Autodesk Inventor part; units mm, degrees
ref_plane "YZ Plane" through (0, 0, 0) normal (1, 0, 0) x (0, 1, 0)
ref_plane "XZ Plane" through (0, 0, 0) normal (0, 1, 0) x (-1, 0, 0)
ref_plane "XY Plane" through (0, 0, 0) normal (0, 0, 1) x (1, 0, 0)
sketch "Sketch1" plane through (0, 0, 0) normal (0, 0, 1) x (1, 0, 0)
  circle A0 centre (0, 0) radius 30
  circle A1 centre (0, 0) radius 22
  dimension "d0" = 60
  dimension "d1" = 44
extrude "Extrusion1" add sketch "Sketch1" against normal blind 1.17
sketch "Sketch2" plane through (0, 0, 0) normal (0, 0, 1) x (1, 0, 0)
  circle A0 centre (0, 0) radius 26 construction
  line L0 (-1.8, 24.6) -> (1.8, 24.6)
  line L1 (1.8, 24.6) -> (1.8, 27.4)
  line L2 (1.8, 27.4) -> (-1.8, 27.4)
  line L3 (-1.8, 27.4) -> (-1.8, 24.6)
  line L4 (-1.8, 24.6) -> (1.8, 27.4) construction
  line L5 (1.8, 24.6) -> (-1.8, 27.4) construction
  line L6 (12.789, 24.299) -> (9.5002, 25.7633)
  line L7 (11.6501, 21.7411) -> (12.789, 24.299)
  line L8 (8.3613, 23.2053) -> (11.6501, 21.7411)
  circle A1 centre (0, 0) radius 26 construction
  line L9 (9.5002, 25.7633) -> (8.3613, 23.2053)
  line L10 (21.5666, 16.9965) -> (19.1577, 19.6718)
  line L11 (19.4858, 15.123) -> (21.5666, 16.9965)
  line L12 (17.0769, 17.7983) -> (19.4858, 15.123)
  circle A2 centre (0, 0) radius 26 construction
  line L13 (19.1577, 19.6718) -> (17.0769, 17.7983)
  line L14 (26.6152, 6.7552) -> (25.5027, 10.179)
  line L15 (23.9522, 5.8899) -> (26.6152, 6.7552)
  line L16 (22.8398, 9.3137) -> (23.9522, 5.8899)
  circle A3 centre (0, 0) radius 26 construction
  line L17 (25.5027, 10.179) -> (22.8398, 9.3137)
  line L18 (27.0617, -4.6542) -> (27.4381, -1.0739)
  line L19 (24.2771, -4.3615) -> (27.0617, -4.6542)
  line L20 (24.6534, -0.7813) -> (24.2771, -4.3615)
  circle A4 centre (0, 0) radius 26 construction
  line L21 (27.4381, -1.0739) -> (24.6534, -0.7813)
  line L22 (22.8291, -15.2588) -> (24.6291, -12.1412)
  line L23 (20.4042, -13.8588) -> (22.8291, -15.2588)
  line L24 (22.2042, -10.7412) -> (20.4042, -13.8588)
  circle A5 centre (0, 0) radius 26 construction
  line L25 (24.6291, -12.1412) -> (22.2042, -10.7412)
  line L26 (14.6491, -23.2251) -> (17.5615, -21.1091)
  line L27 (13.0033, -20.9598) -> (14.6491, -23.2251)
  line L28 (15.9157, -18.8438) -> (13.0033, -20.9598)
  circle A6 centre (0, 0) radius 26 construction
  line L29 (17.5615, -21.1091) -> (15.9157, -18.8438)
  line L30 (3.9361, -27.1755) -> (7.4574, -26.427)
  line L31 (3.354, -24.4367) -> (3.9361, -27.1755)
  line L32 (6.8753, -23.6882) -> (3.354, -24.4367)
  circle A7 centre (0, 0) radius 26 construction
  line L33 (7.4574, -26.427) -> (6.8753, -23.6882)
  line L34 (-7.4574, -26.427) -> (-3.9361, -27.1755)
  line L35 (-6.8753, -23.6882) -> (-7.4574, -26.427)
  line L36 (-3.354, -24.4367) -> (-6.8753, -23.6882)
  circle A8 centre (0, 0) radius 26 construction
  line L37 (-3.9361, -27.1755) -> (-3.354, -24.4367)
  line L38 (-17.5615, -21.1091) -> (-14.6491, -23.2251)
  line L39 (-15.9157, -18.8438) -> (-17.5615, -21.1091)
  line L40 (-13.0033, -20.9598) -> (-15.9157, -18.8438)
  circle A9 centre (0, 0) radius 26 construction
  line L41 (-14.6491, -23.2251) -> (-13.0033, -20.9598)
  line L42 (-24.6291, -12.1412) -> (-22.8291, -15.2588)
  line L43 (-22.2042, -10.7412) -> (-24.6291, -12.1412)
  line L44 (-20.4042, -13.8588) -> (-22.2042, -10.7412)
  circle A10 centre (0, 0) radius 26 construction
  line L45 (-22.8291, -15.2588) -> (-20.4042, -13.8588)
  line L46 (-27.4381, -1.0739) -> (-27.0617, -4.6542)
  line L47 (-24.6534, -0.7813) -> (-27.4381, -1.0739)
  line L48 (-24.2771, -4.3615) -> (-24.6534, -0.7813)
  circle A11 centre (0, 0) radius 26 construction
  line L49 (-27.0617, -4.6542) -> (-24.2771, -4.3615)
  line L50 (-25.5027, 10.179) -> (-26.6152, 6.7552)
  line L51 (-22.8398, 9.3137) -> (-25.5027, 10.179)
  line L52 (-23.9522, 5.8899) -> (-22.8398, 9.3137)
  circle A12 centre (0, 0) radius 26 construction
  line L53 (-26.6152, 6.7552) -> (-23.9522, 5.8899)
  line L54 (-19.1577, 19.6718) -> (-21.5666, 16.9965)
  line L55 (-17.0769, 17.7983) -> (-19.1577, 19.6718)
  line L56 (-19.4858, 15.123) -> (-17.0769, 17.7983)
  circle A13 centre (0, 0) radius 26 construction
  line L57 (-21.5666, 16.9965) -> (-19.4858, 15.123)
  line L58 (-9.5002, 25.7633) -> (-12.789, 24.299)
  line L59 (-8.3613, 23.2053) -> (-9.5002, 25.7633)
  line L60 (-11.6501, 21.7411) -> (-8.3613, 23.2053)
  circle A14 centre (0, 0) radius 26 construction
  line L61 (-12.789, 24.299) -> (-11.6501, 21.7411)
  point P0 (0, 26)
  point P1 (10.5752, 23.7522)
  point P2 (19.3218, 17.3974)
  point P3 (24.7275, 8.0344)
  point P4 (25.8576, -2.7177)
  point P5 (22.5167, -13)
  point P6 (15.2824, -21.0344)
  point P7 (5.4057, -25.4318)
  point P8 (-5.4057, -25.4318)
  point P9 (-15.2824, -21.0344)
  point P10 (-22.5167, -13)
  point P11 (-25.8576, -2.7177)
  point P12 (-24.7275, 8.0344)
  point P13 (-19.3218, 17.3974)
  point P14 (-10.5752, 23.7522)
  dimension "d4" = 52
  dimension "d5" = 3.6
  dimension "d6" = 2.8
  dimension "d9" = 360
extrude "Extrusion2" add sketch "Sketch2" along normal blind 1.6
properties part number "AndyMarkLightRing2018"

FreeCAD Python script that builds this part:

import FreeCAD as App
import Part
import Sketcher

V = App.Vector
Q = App.Units.Quantity


def add_polygon(sketch, points):
    """Adds a closed chain of lines whose ends are joined by coincident constraints."""
    first, n = sketch.GeometryCount, len(points)
    for a, b in zip(points, points[1:] + points[:1]):
        sketch.addGeometry(Part.LineSegment(App.Vector(*a, 0), App.Vector(*b, 0)), False)
    for i in range(n):
        sketch.addConstraint(Sketcher.Constraint("Coincident", first + i, 2, first + (i + 1) % n, 1))

doc = App.newDocument("Part")
body = doc.addObject("PartDesign::Body", "Body")

# Sketch on XY plane
sketch1 = body.newObject("Sketcher::SketchObject", "Sketch")
sketch1.AttachmentSupport = (doc.getObject("XY_Plane"), [""])
sketch1.MapMode = "FlatFace"
sketch1.addGeometry([
    Part.Circle(V(0, 0, 0), V(0, 0, 1), 30),
    Part.Circle(V(0, 0, 0), V(0, 0, 1), 22),
], False)
sketch1.addConstraint([
    Sketcher.Constraint("Coincident", 0, 3, -1, 1),
    Sketcher.Constraint("Coincident", 1, 3, -1, 1),
    Sketcher.Constraint("Diameter", 0, 60.0),
    Sketcher.Constraint("Diameter", 1, 44.0),
])
pad1 = body.newObject("PartDesign::Pad", "Pad")
pad1.Profile = sketch1
pad1.Length = 1.17
pad1.Reversed = True

# Sketch on XY plane
sketch2 = body.newObject("Sketcher::SketchObject", "Sketch001")
sketch2.AttachmentSupport = (doc.getObject("XY_Plane"), [""])
sketch2.MapMode = "FlatFace"
add_polygon(sketch2, [(-1.8, 27.4), (-1.8, 24.6), (1.8, 24.6), (1.8, 27.4)])  # lines 0-3
add_polygon(sketch2, [(11.6501, 21.7411), (12.789, 24.299), (9.5002, 25.7633), (8.3613, 23.2053)])  # lines 4-7
add_polygon(sketch2, [(19.4858, 15.123), (21.5666, 16.9965), (19.1577, 19.6718), (17.0769, 17.7983)])  # lines 8-11
add_polygon(sketch2, [(23.9522, 5.8899), (26.6152, 6.7552), (25.5027, 10.179), (22.8398, 9.3137)])  # lines 12-15
add_polygon(sketch2, [(24.2771, -4.3615), (27.0617, -4.6542), (27.4381, -1.0739), (24.6534, -0.7813)])  # lines 16-19
add_polygon(sketch2, [(20.4042, -13.8588), (22.8291, -15.2588), (24.6291, -12.1412), (22.2042, -10.7412)])  # lines 20-23
add_polygon(sketch2, [(13.0033, -20.9598), (14.6491, -23.2251), (17.5615, -21.1091), (15.9157, -18.8438)])  # lines 24-27
add_polygon(sketch2, [(3.354, -24.4367), (3.9361, -27.1755), (7.4574, -26.427), (6.8753, -23.6882)])  # lines 28-31
add_polygon(sketch2, [(-6.8753, -23.6882), (-7.4574, -26.427), (-3.9361, -27.1755), (-3.354, -24.4367)])  # lines 32-35
add_polygon(sketch2, [(-15.9157, -18.8438), (-17.5615, -21.1091), (-14.6491, -23.2251), (-13.0033, -20.9598)])  # lines 36-39
add_polygon(sketch2, [(-22.2042, -10.7412), (-24.6291, -12.1412), (-22.8291, -15.2588), (-20.4042, -13.8588)])  # lines 40-43
add_polygon(sketch2, [(-24.6534, -0.7813), (-27.4381, -1.0739), (-27.0617, -4.6542), (-24.2771, -4.3615)])  # lines 44-47
add_polygon(sketch2, [(-22.8398, 9.3137), (-25.5027, 10.179), (-26.6152, 6.7552), (-23.9522, 5.8899)])  # lines 48-51
add_polygon(sketch2, [(-17.0769, 17.7983), (-19.1577, 19.6718), (-21.5666, 16.9965), (-19.4858, 15.123)])  # lines 52-55
add_polygon(sketch2, [(-8.3613, 23.2053), (-9.5002, 25.7633), (-12.789, 24.299), (-11.6501, 21.7411)])  # lines 56-59
sketch2.addConstraint([
    Sketcher.Constraint("Vertical", 0),
    Sketcher.Constraint("Horizontal", 1),
    Sketcher.Constraint("Vertical", 2),
    Sketcher.Constraint("Horizontal", 3),
    Sketcher.Constraint("Symmetric", 29, 2, 32, 2, -2),
    Sketcher.Constraint("Symmetric", 28, 2, 33, 2, -2),
    Sketcher.Constraint("Symmetric", 31, 2, 34, 2, -2),
    Sketcher.Constraint("Symmetric", 30, 2, 35, 2, -2),
    Sketcher.Constraint("Symmetric", 25, 2, 36, 2, -2),
    Sketcher.Constraint("Symmetric", 24, 2, 37, 2, -2),
    Sketcher.Constraint("Symmetric", 27, 2, 38, 2, -2),
    Sketcher.Constraint("Symmetric", 26, 2, 39, 2, -2),
    Sketcher.Constraint("Symmetric", 21, 2, 40, 2, -2),
    Sketcher.Constraint("Symmetric", 20, 2, 41, 2, -2),
    Sketcher.Constraint("Symmetric", 23, 2, 42, 2, -2),
    Sketcher.Constraint("Symmetric", 22, 2, 43, 2, -2),
    Sketcher.Constraint("Symmetric", 17, 2, 44, 2, -2),
    Sketcher.Constraint("Symmetric", 16, 2, 45, 2, -2),
    Sketcher.Constraint("Symmetric", 19, 2, 46, 2, -2),
    Sketcher.Constraint("Symmetric", 18, 2, 47, 2, -2),
    Sketcher.Constraint("Symmetric", 13, 2, 48, 2, -2),
    Sketcher.Constraint("Symmetric", 12, 2, 49, 2, -2),
    Sketcher.Constraint("Symmetric", 15, 2, 50, 2, -2),
    Sketcher.Constraint("Symmetric", 14, 2, 51, 2, -2),
    Sketcher.Constraint("Symmetric", 9, 2, 52, 2, -2),
    Sketcher.Constraint("Symmetric", 8, 2, 53, 2, -2),
    Sketcher.Constraint("Symmetric", 11, 2, 54, 2, -2),
    Sketcher.Constraint("Symmetric", 10, 2, 55, 2, -2),
    Sketcher.Constraint("Symmetric", 5, 2, 56, 2, -2),
    Sketcher.Constraint("Symmetric", 4, 2, 57, 2, -2),
    Sketcher.Constraint("Symmetric", 7, 2, 58, 2, -2),
    Sketcher.Constraint("Symmetric", 6, 2, 59, 2, -2),
    Sketcher.Constraint("Perpendicular", 4, 5),
    Sketcher.Constraint("Perpendicular", 5, 6),
    Sketcher.Constraint("Perpendicular", 6, 7),
    Sketcher.Constraint("Perpendicular", 8, 9),
    Sketcher.Constraint("Perpendicular", 9, 10),
    Sketcher.Constraint("Perpendicular", 10, 11),
    Sketcher.Constraint("Perpendicular", 12, 13),
    Sketcher.Constraint("Perpendicular", 13, 14),
    Sketcher.Constraint("Perpendicular", 14, 15),
    Sketcher.Constraint("Perpendicular", 16, 17),
    Sketcher.Constraint("Perpendicular", 17, 18),
    Sketcher.Constraint("Perpendicular", 18, 19),
    Sketcher.Constraint("Perpendicular", 20, 21),
    Sketcher.Constraint("Perpendicular", 21, 22),
    Sketcher.Constraint("Perpendicular", 22, 23),
    Sketcher.Constraint("Perpendicular", 24, 25),
    Sketcher.Constraint("Perpendicular", 25, 26),
    Sketcher.Constraint("Perpendicular", 26, 27),
    Sketcher.Constraint("Perpendicular", 28, 29),
    Sketcher.Constraint("Perpendicular", 29, 30),
    Sketcher.Constraint("Perpendicular", 30, 31),
    Sketcher.Constraint("Equal", 6, 8),
    Sketcher.Constraint("Equal", 7, 9),
    Sketcher.Constraint("Equal", 10, 12),
    Sketcher.Constraint("Equal", 11, 13),
    Sketcher.Constraint("Equal", 14, 16),
    Sketcher.Constraint("Equal", 15, 17),
    Sketcher.Constraint("Equal", 18, 20),
    Sketcher.Constraint("Equal", 19, 21),
    Sketcher.Constraint("Equal", 22, 24),
    Sketcher.Constraint("Equal", 23, 25),
    Sketcher.Constraint("Equal", 26, 28),
    Sketcher.Constraint("Equal", 27, 29),
    Sketcher.Constraint("DistanceX", 1, 1, 1, 2, 3.6),
    Sketcher.Constraint("DistanceY", 0, 2, 0, 1, 2.8),
    Sketcher.Constraint("Distance", 4, 2.8),
    Sketcher.Constraint("Distance", 5, 3.6),
    Sketcher.Constraint("Angle", 4, Q("65.999 deg")),
    Sketcher.Constraint("Angle", 8, Q("41.999 deg")),
    Sketcher.Constraint("Angle", 12, Q("18.0008 deg")),
    Sketcher.Constraint("Angle", 16, Q("-6.0005 deg")),
    Sketcher.Constraint("Angle", 20, Q("-29.9997 deg")),
    Sketcher.Constraint("Angle", 24, Q("-54.0006 deg")),
    Sketcher.Constraint("Angle", 28, Q("-78.001 deg")),
    Sketcher.Constraint("DistanceX", 0, 2, -1, 1, 1.8),
    Sketcher.Constraint("DistanceY", -1, 1, 0, 2, 24.6),
    Sketcher.Constraint("DistanceX", -1, 1, 7, 2, 11.65),
    Sketcher.Constraint("DistanceY", -1, 1, 15, 2, 5.89),
    Sketcher.Constraint("DistanceY", 21, 2, 18, 2, 11.36),
    Sketcher.Constraint("DistanceX", 24, 2, 20, 2, 8.18),
    Sketcher.Constraint("DistanceX", 33, 2, 31, 2, 7.29),
    Sketcher.Constraint("DistanceY", 39, 2, 44, 2, 17.77),
    Sketcher.Constraint("DistanceY", -1, 1, 4, 2, 24.299),
    Sketcher.Constraint("DistanceX", -1, 1, 10, 2, 17.077),
    Sketcher.Constraint("DistanceY", -1, 1, 11, 2, 15.123),
    Sketcher.Constraint("DistanceX", -1, 1, 17, 2, 27.438),
    Sketcher.Constraint("DistanceY", 17, 2, -1, 1, 1.074),
    Sketcher.Constraint("DistanceX", -1, 1, 20, 2, 22.829),
    Sketcher.Constraint("DistanceY", 29, 2, -1, 1, 26.427),
    Sketcher.Constraint("DistanceX", 7, 2, 12, 2, 14.965),
])
pad2 = body.newObject("PartDesign::Pad", "Pad001")
pad2.Profile = sketch2
pad2.Length = 1.6

doc.recompute()
